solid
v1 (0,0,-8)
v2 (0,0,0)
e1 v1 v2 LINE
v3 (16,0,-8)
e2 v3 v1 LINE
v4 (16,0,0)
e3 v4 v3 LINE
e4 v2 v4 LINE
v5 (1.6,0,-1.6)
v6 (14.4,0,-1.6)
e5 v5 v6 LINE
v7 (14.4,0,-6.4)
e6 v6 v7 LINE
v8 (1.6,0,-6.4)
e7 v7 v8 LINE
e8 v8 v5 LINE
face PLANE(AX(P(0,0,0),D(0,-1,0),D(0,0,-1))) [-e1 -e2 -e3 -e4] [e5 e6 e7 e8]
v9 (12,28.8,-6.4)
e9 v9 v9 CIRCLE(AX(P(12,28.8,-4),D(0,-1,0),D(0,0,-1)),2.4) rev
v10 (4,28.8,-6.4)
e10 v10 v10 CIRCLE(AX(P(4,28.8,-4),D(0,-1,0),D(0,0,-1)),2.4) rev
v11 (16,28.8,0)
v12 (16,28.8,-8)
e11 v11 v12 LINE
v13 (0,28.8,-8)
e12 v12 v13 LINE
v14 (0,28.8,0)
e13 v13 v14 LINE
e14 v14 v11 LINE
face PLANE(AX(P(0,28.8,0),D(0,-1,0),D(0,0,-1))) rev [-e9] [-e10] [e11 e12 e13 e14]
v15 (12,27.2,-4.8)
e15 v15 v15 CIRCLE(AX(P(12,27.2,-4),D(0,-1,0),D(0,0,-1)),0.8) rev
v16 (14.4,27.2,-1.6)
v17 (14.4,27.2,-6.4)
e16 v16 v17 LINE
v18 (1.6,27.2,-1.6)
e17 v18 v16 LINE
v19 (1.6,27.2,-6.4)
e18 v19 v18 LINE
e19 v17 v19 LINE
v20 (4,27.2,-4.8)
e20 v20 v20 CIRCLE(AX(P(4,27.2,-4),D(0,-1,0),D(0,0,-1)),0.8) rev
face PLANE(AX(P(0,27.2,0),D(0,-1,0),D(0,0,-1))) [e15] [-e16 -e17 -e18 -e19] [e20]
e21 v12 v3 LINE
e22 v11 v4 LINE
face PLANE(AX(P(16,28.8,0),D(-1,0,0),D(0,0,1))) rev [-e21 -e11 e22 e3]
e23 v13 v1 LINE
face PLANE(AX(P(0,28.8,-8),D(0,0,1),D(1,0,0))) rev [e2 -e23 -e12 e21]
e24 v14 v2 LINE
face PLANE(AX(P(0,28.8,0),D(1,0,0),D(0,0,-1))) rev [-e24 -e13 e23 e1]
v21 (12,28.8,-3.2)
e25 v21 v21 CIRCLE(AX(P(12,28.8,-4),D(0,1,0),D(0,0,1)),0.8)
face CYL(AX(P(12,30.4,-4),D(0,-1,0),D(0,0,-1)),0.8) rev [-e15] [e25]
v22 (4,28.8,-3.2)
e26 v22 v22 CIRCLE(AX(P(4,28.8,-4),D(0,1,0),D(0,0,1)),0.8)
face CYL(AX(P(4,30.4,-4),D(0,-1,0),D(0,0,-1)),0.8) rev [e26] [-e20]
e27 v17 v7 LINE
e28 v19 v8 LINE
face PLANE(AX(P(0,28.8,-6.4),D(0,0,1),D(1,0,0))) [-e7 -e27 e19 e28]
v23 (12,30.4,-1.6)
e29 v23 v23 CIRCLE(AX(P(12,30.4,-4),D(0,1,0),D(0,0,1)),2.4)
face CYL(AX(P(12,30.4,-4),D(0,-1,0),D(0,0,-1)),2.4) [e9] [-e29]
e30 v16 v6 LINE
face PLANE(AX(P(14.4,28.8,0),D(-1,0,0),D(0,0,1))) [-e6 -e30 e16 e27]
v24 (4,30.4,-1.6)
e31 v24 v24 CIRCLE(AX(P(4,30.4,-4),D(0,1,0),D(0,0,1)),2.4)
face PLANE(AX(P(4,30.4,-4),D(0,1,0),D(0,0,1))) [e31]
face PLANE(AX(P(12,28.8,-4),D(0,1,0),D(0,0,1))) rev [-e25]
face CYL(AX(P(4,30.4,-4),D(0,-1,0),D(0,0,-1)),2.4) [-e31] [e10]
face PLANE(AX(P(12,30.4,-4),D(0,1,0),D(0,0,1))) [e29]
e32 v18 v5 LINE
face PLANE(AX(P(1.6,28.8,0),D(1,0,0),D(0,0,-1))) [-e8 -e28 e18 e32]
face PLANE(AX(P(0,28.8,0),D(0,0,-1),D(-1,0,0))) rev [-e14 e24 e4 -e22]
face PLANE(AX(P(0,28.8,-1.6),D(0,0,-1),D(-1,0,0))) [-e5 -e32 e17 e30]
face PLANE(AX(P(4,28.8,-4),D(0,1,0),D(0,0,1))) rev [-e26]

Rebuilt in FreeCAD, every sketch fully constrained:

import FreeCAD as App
import Part
import Sketcher

V = App.Vector
Q = App.Units.Quantity


def faces_at(feature, points):
    """Names of the faces that lie closest to the given points."""
    faces = feature.Shape.Faces
    near = lambda p: min(range(len(faces)), key=lambda i: faces[i].distToShape(Part.Vertex(*p))[0])
    return sorted({f"Face{near(p) + 1}" for p in points})


def add_polygon(sketch, points):
    """Adds a closed chain of lines whose ends are joined by coincident constraints."""
    first, n = sketch.GeometryCount, len(points)
    for a, b in zip(points, points[1:] + points[:1]):
        sketch.addGeometry(Part.LineSegment(App.Vector(*a, 0), App.Vector(*b, 0)), False)
    for i in range(n):
        sketch.addConstraint(Sketcher.Constraint("Coincident", first + i, 2, first + (i + 1) % n, 1))

doc = App.newDocument("Part")
body = doc.addObject("PartDesign::Body", "Body")

sketch1 = body.newObject("Sketcher::SketchObject", "Sketch")
sketch1.AttachmentSupport = (doc.getObject("XZ_Plane"), [""])
sketch1.MapMode = "FlatFace"
add_polygon(sketch1, [(0, -8), (0, 0), (16, 0), (16, -8)])
sketch1.addConstraint([
    Sketcher.Constraint("Vertical", 0),
    Sketcher.Constraint("Horizontal", 1),
    Sketcher.Constraint("Vertical", 2),
    Sketcher.Constraint("Horizontal", 3),
    Sketcher.Constraint("Coincident", 0, 2, -1, 1),
    Sketcher.Constraint("DistanceX", 1, 1, 1, 2, Q("16 mm")),
    Sketcher.Constraint("DistanceY", 0, 1, 0, 2, Q("8 mm")),
])
pad1 = body.newObject("PartDesign::Pad", "Pad")
pad1.Profile = sketch1
pad1.Length = 28.8
pad1.Reversed = True

sketch2 = body.newObject("Sketcher::SketchObject", "Sketch001")
sketch2.AttachmentSupport = (doc.getObject("XZ_Plane"), [""])
sketch2.MapMode = "FlatFace"
sketch2.AttachmentOffset = App.Placement(V(0, 0, -28.8), App.Rotation())
sketch2.addGeometry(Part.Circle(V(12, -4, 0), V(0, 0, 1), 2.4), False)
sketch2.addConstraint([
    Sketcher.Constraint("Diameter", 0, Q("4.8 mm")),
    Sketcher.Constraint("DistanceX", -1, 1, 0, 3, Q("12 mm")),
    Sketcher.Constraint("DistanceY", 0, 3, -1, 1, Q("4 mm")),
])
pad2 = body.newObject("PartDesign::Pad", "Pad001")
pad2.Profile = sketch2
pad2.Length = 1.6
pad2.Reversed = True
doc.recompute()

linearpattern = body.newObject("PartDesign::LinearPattern", "LinearPattern")
linearpattern.Originals = [pad2]
linearpattern.Direction = (doc.getObject("X_Axis"), [""])
linearpattern.Mode = "offset"
linearpattern.Offset = 8
linearpattern.Occurrences = 2
linearpattern.Reversed = True
body.Tip = linearpattern
doc.recompute()

thickness = body.newObject("PartDesign::Thickness", "Thickness")
thickness.Base = (linearpattern, faces_at(linearpattern, [(8, 0, -4)]))
thickness.Value = 1.6
thickness.Reversed = True
thickness.Join = "Intersection"

doc.recompute()
